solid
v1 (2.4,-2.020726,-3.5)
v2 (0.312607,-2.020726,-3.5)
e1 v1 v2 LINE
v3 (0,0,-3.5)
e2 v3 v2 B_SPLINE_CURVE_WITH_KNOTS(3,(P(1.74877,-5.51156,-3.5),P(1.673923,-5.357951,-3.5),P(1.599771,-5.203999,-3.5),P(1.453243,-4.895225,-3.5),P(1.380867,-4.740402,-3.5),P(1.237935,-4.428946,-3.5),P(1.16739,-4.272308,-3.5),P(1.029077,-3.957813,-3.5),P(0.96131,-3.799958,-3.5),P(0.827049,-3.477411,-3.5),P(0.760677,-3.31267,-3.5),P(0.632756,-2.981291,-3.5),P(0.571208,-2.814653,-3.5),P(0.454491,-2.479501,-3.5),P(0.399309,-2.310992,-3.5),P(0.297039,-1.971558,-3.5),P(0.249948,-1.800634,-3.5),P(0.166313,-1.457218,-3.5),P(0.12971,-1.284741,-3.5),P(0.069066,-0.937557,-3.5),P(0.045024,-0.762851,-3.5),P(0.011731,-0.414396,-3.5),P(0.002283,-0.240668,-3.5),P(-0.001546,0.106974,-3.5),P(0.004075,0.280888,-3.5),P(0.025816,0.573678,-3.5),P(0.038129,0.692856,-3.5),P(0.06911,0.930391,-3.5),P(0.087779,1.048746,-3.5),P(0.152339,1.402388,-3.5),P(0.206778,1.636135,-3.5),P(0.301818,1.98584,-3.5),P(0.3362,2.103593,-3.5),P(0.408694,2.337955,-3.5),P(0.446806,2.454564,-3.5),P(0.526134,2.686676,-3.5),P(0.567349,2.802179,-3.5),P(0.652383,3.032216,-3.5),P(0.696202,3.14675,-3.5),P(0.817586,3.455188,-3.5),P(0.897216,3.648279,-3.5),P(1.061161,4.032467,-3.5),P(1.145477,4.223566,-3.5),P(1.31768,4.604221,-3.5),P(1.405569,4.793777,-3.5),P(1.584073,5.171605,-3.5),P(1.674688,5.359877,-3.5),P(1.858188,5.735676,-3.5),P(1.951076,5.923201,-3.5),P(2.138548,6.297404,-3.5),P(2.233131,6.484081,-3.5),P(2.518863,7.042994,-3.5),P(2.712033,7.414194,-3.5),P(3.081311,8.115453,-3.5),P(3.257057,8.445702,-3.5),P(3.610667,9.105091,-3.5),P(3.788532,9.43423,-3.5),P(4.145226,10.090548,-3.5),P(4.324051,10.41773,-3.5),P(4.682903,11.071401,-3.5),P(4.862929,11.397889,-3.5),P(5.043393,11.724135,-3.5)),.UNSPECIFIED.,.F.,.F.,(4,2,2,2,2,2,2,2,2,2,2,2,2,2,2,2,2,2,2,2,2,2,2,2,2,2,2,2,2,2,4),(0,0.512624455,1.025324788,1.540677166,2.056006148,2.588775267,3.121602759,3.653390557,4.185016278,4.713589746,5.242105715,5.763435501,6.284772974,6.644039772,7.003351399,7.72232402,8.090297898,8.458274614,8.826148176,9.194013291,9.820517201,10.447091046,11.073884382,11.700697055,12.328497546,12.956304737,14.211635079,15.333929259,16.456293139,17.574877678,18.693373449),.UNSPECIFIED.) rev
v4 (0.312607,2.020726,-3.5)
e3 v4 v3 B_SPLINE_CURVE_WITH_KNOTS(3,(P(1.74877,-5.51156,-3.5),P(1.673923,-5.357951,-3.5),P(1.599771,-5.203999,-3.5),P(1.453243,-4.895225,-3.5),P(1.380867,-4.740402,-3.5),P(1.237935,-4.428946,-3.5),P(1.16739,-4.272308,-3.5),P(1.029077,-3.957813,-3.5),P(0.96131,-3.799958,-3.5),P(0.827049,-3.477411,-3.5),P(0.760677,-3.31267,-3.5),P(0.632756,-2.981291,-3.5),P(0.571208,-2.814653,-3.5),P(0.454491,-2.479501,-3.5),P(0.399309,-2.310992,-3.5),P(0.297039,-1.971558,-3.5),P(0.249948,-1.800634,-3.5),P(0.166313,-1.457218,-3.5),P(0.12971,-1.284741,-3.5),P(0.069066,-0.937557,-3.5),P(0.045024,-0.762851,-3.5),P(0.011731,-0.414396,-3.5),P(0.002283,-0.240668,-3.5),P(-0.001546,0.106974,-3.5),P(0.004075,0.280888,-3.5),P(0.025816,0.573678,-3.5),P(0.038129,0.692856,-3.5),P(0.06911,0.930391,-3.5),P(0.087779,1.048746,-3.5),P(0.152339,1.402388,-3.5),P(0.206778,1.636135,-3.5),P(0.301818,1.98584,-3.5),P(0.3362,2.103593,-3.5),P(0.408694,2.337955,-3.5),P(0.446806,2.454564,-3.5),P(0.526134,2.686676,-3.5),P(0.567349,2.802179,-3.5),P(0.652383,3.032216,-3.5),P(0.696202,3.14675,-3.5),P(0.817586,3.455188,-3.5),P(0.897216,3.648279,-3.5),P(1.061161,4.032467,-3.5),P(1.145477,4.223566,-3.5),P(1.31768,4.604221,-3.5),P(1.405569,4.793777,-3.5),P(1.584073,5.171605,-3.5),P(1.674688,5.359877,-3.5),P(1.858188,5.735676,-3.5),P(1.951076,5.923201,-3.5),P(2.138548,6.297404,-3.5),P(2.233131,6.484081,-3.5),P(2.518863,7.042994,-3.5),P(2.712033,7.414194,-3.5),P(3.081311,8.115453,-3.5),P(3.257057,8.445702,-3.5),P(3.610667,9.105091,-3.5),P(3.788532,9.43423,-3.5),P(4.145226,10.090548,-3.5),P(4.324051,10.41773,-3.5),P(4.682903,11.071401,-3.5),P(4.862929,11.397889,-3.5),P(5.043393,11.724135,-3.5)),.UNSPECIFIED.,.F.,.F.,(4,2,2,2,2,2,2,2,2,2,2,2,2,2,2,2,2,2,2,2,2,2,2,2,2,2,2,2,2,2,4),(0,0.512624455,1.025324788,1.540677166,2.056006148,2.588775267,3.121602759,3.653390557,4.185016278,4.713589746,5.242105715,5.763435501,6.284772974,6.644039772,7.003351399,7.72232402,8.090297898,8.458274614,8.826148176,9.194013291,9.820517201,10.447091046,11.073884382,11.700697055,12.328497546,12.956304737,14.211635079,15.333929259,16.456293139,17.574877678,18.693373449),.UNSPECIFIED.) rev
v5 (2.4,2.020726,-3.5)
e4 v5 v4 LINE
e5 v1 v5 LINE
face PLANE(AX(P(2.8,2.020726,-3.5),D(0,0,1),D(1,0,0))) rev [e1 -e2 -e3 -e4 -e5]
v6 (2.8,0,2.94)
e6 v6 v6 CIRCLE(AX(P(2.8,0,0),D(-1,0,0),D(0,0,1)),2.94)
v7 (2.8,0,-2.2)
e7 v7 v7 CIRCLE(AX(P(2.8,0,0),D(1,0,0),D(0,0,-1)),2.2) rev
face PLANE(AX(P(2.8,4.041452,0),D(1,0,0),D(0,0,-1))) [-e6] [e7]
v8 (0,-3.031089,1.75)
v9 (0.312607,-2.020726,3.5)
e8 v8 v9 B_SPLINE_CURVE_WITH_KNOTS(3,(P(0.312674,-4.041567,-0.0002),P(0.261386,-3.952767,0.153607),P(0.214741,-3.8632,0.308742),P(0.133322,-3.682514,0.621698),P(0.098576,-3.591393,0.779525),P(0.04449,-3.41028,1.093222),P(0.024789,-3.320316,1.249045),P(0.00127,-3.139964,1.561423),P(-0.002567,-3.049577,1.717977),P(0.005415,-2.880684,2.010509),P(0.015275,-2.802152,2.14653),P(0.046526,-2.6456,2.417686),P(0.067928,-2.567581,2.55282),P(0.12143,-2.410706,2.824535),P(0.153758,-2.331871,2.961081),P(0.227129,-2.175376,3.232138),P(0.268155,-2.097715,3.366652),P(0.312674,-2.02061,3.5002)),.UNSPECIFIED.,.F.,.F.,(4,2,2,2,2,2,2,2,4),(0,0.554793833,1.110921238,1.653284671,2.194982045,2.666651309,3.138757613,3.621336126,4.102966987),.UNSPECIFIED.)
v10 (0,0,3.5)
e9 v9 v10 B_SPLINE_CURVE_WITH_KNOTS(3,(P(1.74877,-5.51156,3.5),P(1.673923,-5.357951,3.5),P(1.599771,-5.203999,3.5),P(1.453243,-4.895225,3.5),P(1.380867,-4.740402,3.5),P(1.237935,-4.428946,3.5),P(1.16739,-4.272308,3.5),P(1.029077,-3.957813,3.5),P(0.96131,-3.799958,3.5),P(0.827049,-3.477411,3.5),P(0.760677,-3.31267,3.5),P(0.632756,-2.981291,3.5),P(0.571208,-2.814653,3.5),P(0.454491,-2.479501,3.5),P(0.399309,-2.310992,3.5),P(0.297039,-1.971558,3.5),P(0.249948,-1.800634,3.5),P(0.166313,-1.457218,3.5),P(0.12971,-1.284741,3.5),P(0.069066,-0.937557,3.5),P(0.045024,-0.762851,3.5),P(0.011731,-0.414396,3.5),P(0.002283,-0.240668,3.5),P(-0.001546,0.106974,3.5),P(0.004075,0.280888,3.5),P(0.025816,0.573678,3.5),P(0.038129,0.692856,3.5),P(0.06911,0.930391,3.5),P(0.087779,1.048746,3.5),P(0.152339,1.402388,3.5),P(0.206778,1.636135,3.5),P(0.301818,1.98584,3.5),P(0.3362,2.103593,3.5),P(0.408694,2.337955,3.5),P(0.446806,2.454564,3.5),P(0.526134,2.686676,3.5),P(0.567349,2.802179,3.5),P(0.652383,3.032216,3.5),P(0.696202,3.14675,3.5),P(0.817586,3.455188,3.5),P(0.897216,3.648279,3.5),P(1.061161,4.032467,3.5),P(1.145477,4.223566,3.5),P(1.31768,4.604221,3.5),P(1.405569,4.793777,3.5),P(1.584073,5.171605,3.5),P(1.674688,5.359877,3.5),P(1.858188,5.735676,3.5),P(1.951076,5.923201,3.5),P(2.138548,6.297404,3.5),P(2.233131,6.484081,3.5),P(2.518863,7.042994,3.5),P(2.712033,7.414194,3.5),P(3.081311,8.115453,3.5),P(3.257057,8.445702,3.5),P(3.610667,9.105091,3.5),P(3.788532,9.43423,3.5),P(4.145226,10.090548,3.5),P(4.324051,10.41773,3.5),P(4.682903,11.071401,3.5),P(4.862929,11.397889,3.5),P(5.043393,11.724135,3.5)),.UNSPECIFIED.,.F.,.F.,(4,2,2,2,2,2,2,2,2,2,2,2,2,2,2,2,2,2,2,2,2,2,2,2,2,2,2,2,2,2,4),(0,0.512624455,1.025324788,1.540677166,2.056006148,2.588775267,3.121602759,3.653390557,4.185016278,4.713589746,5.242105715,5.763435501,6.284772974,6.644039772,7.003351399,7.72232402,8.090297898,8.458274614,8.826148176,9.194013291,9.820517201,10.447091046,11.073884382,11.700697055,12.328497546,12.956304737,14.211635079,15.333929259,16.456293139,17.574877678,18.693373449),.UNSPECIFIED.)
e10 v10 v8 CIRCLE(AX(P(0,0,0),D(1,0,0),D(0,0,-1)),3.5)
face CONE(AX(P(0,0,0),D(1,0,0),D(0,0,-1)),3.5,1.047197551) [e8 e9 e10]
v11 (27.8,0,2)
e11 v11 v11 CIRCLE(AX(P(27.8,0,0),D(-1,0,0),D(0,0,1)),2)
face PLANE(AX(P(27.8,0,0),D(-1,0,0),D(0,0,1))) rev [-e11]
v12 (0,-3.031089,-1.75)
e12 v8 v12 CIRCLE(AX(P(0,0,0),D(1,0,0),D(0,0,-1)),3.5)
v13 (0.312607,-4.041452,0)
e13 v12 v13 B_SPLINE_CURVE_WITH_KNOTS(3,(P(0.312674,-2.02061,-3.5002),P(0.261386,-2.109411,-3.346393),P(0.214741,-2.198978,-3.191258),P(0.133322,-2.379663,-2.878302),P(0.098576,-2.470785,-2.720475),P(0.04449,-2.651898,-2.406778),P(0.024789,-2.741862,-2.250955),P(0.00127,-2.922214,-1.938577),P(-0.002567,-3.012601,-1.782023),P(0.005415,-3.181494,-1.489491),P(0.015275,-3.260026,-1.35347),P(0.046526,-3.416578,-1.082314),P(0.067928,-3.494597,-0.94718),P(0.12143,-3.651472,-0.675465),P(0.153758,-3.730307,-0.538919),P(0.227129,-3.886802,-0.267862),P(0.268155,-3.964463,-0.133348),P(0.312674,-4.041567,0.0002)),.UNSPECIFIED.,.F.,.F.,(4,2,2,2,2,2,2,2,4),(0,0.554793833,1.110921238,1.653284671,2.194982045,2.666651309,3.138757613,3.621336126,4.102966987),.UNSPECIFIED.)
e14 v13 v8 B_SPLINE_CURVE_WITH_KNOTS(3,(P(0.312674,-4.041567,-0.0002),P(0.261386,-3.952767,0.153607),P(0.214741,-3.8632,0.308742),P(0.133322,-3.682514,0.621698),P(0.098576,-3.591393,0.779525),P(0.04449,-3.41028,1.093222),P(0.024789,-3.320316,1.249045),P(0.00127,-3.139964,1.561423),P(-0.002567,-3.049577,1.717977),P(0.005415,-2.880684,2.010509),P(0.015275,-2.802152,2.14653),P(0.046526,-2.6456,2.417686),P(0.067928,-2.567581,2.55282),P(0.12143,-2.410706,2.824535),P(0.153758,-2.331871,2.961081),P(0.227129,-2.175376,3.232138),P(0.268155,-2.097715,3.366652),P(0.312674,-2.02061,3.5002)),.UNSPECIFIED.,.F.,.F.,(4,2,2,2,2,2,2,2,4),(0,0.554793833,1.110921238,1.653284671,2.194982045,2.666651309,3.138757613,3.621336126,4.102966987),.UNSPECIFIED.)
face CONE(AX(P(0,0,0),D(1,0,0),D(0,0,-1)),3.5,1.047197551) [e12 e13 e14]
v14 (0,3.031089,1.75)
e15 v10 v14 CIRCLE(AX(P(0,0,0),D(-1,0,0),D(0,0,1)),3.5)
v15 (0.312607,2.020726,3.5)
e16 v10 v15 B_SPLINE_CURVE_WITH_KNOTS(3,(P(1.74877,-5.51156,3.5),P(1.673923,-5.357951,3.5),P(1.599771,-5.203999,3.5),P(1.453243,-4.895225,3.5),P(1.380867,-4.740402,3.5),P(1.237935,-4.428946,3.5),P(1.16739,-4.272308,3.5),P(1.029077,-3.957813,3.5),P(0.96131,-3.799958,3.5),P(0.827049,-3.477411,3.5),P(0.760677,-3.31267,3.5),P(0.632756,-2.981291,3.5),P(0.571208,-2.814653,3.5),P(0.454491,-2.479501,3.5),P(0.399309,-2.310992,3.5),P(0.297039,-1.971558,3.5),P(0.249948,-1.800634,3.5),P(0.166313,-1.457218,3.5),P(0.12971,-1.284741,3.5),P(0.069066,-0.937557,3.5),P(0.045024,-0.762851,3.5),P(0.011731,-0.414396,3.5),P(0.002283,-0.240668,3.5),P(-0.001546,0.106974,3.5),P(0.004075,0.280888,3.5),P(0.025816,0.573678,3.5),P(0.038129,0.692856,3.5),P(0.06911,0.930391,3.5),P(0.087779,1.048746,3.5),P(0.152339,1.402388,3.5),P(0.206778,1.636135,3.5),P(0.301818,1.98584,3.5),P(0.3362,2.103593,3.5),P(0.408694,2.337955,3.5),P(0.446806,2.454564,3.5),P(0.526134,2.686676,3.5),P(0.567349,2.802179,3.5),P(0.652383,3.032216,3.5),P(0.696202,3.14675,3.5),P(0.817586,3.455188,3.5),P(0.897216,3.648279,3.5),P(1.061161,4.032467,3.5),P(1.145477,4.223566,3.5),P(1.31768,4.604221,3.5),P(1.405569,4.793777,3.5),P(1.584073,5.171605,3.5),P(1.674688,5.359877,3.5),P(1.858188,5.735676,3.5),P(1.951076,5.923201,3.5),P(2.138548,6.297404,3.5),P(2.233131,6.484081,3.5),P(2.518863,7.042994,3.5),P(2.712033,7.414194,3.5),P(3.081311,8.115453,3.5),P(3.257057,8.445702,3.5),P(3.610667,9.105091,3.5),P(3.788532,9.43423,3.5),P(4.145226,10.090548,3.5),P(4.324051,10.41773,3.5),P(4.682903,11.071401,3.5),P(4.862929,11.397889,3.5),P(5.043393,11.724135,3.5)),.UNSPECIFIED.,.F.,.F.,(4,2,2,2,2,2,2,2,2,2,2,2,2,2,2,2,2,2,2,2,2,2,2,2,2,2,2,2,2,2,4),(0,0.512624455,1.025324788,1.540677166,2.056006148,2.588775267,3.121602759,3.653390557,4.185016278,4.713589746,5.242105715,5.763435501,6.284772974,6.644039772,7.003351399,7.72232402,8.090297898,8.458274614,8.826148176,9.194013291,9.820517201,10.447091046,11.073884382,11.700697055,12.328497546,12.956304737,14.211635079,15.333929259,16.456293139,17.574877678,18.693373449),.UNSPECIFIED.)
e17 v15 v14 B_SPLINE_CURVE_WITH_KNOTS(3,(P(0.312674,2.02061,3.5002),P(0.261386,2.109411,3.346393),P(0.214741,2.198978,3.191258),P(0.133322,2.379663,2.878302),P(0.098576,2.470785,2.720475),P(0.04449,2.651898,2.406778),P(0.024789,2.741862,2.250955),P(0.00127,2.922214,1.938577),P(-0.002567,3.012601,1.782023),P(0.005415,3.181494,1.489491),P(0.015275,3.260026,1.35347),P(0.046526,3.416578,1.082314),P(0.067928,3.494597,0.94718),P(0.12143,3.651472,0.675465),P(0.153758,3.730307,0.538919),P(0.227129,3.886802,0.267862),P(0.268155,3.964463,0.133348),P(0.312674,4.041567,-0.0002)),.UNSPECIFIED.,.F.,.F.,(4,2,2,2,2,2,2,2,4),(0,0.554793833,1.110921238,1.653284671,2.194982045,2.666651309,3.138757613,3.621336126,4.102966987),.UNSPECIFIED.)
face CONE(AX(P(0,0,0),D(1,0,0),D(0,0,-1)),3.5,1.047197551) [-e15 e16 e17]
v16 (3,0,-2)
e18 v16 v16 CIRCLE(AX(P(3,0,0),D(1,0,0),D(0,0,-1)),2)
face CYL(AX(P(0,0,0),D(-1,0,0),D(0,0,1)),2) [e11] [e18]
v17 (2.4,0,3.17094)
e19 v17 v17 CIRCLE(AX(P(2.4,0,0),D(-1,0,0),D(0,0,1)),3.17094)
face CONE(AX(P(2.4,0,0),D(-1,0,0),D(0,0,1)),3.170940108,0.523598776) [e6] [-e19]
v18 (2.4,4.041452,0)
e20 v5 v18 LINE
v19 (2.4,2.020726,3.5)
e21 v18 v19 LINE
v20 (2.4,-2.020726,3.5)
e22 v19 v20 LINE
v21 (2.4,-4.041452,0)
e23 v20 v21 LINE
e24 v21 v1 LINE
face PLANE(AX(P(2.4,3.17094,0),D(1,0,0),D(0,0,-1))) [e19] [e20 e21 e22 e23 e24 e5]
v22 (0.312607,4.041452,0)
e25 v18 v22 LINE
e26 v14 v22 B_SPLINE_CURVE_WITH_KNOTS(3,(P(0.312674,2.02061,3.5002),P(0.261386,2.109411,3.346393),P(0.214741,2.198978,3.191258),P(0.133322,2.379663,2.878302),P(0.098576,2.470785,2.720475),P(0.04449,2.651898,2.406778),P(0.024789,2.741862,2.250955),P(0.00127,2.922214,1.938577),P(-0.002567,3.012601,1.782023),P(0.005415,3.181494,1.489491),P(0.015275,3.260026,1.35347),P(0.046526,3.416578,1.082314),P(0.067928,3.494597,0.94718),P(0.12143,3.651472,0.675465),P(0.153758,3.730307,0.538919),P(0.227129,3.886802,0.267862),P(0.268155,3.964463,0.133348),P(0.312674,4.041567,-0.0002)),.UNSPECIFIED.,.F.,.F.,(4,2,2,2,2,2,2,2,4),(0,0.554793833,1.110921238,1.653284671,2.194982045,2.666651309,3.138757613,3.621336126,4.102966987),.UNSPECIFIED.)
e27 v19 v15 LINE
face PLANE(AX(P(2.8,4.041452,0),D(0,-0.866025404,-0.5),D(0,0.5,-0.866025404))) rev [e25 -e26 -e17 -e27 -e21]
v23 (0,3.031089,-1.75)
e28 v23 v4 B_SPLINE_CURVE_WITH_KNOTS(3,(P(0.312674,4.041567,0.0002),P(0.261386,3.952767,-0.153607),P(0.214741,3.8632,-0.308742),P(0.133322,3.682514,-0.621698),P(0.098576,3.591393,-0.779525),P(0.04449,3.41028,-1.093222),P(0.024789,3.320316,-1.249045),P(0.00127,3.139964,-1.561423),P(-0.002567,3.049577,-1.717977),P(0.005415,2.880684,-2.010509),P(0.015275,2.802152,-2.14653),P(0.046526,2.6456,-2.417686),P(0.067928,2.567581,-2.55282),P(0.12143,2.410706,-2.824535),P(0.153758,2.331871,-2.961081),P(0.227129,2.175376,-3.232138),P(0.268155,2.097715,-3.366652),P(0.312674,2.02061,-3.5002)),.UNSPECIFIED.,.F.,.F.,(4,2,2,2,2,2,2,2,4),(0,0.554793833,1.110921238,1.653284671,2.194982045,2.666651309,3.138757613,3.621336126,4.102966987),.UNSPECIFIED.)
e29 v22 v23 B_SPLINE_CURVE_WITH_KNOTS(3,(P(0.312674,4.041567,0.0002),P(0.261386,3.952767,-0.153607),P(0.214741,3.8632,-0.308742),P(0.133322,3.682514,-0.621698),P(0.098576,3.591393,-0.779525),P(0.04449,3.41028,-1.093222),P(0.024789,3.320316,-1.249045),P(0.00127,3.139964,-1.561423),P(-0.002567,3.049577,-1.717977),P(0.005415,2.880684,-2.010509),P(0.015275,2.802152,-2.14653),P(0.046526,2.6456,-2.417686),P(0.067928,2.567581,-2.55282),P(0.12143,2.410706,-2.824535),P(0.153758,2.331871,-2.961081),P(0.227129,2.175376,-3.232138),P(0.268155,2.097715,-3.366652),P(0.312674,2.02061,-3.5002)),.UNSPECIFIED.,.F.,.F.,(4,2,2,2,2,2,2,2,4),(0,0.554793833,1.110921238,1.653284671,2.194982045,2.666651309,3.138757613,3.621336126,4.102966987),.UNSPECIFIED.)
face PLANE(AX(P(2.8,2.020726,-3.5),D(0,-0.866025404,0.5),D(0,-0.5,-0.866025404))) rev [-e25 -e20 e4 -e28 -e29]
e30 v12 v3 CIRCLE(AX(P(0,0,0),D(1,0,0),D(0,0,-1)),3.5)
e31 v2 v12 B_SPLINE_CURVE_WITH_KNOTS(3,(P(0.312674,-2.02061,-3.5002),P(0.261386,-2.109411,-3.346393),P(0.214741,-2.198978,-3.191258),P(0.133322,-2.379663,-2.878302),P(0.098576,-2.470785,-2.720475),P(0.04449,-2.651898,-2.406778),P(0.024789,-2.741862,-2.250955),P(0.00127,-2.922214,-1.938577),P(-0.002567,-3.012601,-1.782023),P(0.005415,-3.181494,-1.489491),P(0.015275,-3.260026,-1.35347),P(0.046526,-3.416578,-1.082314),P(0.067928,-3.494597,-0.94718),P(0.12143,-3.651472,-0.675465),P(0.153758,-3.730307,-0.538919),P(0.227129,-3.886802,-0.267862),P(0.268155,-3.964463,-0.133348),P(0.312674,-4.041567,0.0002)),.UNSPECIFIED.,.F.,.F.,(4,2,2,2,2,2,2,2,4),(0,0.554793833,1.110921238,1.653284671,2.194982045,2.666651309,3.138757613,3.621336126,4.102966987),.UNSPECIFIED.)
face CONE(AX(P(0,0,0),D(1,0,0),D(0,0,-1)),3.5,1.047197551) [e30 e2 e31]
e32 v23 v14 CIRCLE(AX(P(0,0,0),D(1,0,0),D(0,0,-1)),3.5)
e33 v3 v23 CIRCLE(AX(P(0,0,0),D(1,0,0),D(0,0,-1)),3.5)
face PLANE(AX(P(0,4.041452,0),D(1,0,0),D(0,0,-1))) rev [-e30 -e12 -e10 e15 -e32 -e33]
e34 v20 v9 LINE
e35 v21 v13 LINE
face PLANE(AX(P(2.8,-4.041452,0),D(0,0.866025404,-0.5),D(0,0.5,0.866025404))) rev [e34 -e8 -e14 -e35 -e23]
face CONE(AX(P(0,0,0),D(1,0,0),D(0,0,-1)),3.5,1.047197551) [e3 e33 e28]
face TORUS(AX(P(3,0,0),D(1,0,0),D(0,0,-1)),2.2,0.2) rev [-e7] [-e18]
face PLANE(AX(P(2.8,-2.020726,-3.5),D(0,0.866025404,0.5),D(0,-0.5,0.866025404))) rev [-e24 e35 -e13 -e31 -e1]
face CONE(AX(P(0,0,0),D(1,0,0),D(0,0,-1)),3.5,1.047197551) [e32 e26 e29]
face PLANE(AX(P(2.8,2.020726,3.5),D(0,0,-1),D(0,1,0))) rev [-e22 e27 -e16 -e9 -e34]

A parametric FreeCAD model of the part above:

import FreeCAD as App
import Part
import Sketcher
Q = App.Units.Quantity


def edges_at(feature, points):
    """Names of the edges that pass closest to the given points."""
    edges = feature.Shape.Edges
    near = lambda p: min(range(len(edges)), key=lambda i: edges[i].distToShape(Part.Vertex(*p))[0])
    return sorted({f"Edge{near(p) + 1}" for p in points})


def add_polygon(sketch, points):
    """Adds a closed chain of lines whose ends are joined by coincident constraints."""
    first, n = sketch.GeometryCount, len(points)
    for a, b in zip(points, points[1:] + points[:1]):
        sketch.addGeometry(Part.LineSegment(App.Vector(*a, 0), App.Vector(*b, 0)), False)
    for i in range(n):
        sketch.addConstraint(Sketcher.Constraint("Coincident", first + i, 2, first + (i + 1) % n, 1))

doc = App.newDocument("Part")
body = doc.addObject("PartDesign::Body", "Body")

# Sketch on YZ plane
sketch1 = body.newObject("Sketcher::SketchObject", "Sketch")
sketch1.AttachmentSupport = (doc.getObject("YZ_Plane"), [""])
sketch1.MapMode = "FlatFace"
add_polygon(sketch1, [(-2, -3.5), (2, -3.5), (4, 0), (2, 3.5), (-2, 3.5), (-4, 0)])  # lines 0-5
sketch1.addConstraint(Sketcher.Constraint("Horizontal", 0))
sketch1.addConstraint(Sketcher.Constraint("Horizontal", 3))
sketch1.addConstraint(Sketcher.Constraint("Symmetric", 0, 2, 3, 2, -1, 1))
sketch1.addConstraint(Sketcher.Constraint("Symmetric", 1, 2, 4, 2, -1, 1))
sketch1.addConstraint(Sketcher.Constraint("PointOnObject", 1, 2, -1))
sketch1.addConstraint(Sketcher.Constraint("Parallel", 2, 5))
sketch1.addConstraint(Sketcher.Constraint("Vertical", 0, 2, 2, 2))
sketch1.addConstraint(Sketcher.Constraint("Angle", 1, Q("60 deg")))
sketch1.addConstraint(Sketcher.Constraint("DistanceY", 0, 2, 2, 2, Q("7 mm")))
sketch1.addConstraint(Sketcher.Constraint("DistanceX", 0, 1, 0, 2, Q("4.041452 mm")))
pad1 = body.newObject("PartDesign::Pad", "Pad")
pad1.Profile = sketch1
pad1.Length = 2.8

# Sketch on XY plane
sketch2 = body.newObject("Sketcher::SketchObject", "Sketch001")
sketch2.AttachmentSupport = (doc.getObject("XY_Plane"), [""])
sketch2.MapMode = "FlatFace"
add_polygon(sketch2, [(0, 0), (27.8, 0), (27.8, 2), (0, 2)])  # lines 0-3
sketch2.addConstraint(Sketcher.Constraint("Horizontal", 0))
sketch2.addConstraint(Sketcher.Constraint("Vertical", 1))
sketch2.addConstraint(Sketcher.Constraint("Horizontal", 2))
sketch2.addConstraint(Sketcher.Constraint("Vertical", 3))
sketch2.addConstraint(Sketcher.Constraint("Coincident", 3, 2, -1, 1))
sketch2.addConstraint(Sketcher.Constraint("DistanceY", 1, 1, 1, 2, Q("2 mm")))
sketch2.addConstraint(Sketcher.Constraint("DistanceX", 0, 1, 0, 2, Q("27.8 mm")))
revolution = body.newObject("PartDesign::Revolution", "Revolution")
revolution.Profile = sketch2
revolution.ReferenceAxis = (sketch2, ["H_Axis"])
revolution.Angle = 360

# Sketch on XY plane
sketch3 = body.newObject("Sketcher::SketchObject", "Sketch002")
sketch3.AttachmentSupport = (doc.getObject("XY_Plane"), [""])
sketch3.MapMode = "FlatFace"
add_polygon(sketch3, [(0, 4), (3, 9), (3, 14), (-10, 14), (-10, 4)])  # lines 0-4
sketch3.addConstraint(Sketcher.Constraint("Vertical", 1))
sketch3.addConstraint(Sketcher.Constraint("Horizontal", 2))
sketch3.addConstraint(Sketcher.Constraint("Vertical", 3))
sketch3.addConstraint(Sketcher.Constraint("Horizontal", 4))
sketch3.addConstraint(Sketcher.Constraint("PointOnObject", 4, 2, -2))
sketch3.addConstraint(Sketcher.Constraint("DistanceX", 4, 1, 4, 2, Q("10 mm")))
sketch3.addConstraint(Sketcher.Constraint("DistanceY", 1, 1, 1, 2, Q("5 mm")))
sketch3.addConstraint(Sketcher.Constraint("Angle", 0, Q("60 deg")))
sketch3.addConstraint(Sketcher.Constraint("DistanceY", -1, 1, 3, 2, Q("3.5 mm")))
sketch3.addConstraint(Sketcher.Constraint("DistanceX", 2, 2, 2, 1, Q("13.199359 mm")))
groove = body.newObject("PartDesign::Groove", "Groove")
groove.Profile = sketch3
groove.ReferenceAxis = (sketch3, ["H_Axis"])
groove.Angle = 360

# Sketch on XY plane
sketch4 = body.newObject("Sketcher::SketchObject", "Sketch003")
sketch4.AttachmentSupport = (doc.getObject("XY_Plane"), [""])
sketch4.MapMode = "FlatFace"
add_polygon(sketch4, [(2.4, 3.17), (2.8, 2.94), (2.8, 4.04), (2.4, 4.04)])  # lines 0-3
sketch4.addConstraint(Sketcher.Constraint("Vertical", 1))
sketch4.addConstraint(Sketcher.Constraint("Horizontal", 2))
sketch4.addConstraint(Sketcher.Constraint("Vertical", 3))
sketch4.addConstraint(Sketcher.Constraint("Angle", 0, Q("-30 deg")))
sketch4.addConstraint(Sketcher.Constraint("DistanceX", 2, 2, 2, 1, Q("0.4 mm")))
sketch4.addConstraint(Sketcher.Constraint("DistanceX", -1, 1, 0, 2, Q("2.8 mm")))
sketch4.addConstraint(Sketcher.Constraint("DistanceY", -1, 1, 0, 2, Q("2.94 mm")))
sketch4.addConstraint(Sketcher.Constraint("DistanceY", 1, 1, 1, 2, Q("1.101452 mm")))
groove2 = body.newObject("PartDesign::Groove", "Groove001")
groove2.Profile = sketch4
groove2.ReferenceAxis = (sketch4, ["H_Axis"])
groove2.Angle = 360
doc.recompute()

fillet = body.newObject("PartDesign::Fillet", "Fillet")
fillet.Base = (groove2, edges_at(groove2, [(2.8, 0, -2)]))
fillet.Radius = 0.2

doc.recompute()
